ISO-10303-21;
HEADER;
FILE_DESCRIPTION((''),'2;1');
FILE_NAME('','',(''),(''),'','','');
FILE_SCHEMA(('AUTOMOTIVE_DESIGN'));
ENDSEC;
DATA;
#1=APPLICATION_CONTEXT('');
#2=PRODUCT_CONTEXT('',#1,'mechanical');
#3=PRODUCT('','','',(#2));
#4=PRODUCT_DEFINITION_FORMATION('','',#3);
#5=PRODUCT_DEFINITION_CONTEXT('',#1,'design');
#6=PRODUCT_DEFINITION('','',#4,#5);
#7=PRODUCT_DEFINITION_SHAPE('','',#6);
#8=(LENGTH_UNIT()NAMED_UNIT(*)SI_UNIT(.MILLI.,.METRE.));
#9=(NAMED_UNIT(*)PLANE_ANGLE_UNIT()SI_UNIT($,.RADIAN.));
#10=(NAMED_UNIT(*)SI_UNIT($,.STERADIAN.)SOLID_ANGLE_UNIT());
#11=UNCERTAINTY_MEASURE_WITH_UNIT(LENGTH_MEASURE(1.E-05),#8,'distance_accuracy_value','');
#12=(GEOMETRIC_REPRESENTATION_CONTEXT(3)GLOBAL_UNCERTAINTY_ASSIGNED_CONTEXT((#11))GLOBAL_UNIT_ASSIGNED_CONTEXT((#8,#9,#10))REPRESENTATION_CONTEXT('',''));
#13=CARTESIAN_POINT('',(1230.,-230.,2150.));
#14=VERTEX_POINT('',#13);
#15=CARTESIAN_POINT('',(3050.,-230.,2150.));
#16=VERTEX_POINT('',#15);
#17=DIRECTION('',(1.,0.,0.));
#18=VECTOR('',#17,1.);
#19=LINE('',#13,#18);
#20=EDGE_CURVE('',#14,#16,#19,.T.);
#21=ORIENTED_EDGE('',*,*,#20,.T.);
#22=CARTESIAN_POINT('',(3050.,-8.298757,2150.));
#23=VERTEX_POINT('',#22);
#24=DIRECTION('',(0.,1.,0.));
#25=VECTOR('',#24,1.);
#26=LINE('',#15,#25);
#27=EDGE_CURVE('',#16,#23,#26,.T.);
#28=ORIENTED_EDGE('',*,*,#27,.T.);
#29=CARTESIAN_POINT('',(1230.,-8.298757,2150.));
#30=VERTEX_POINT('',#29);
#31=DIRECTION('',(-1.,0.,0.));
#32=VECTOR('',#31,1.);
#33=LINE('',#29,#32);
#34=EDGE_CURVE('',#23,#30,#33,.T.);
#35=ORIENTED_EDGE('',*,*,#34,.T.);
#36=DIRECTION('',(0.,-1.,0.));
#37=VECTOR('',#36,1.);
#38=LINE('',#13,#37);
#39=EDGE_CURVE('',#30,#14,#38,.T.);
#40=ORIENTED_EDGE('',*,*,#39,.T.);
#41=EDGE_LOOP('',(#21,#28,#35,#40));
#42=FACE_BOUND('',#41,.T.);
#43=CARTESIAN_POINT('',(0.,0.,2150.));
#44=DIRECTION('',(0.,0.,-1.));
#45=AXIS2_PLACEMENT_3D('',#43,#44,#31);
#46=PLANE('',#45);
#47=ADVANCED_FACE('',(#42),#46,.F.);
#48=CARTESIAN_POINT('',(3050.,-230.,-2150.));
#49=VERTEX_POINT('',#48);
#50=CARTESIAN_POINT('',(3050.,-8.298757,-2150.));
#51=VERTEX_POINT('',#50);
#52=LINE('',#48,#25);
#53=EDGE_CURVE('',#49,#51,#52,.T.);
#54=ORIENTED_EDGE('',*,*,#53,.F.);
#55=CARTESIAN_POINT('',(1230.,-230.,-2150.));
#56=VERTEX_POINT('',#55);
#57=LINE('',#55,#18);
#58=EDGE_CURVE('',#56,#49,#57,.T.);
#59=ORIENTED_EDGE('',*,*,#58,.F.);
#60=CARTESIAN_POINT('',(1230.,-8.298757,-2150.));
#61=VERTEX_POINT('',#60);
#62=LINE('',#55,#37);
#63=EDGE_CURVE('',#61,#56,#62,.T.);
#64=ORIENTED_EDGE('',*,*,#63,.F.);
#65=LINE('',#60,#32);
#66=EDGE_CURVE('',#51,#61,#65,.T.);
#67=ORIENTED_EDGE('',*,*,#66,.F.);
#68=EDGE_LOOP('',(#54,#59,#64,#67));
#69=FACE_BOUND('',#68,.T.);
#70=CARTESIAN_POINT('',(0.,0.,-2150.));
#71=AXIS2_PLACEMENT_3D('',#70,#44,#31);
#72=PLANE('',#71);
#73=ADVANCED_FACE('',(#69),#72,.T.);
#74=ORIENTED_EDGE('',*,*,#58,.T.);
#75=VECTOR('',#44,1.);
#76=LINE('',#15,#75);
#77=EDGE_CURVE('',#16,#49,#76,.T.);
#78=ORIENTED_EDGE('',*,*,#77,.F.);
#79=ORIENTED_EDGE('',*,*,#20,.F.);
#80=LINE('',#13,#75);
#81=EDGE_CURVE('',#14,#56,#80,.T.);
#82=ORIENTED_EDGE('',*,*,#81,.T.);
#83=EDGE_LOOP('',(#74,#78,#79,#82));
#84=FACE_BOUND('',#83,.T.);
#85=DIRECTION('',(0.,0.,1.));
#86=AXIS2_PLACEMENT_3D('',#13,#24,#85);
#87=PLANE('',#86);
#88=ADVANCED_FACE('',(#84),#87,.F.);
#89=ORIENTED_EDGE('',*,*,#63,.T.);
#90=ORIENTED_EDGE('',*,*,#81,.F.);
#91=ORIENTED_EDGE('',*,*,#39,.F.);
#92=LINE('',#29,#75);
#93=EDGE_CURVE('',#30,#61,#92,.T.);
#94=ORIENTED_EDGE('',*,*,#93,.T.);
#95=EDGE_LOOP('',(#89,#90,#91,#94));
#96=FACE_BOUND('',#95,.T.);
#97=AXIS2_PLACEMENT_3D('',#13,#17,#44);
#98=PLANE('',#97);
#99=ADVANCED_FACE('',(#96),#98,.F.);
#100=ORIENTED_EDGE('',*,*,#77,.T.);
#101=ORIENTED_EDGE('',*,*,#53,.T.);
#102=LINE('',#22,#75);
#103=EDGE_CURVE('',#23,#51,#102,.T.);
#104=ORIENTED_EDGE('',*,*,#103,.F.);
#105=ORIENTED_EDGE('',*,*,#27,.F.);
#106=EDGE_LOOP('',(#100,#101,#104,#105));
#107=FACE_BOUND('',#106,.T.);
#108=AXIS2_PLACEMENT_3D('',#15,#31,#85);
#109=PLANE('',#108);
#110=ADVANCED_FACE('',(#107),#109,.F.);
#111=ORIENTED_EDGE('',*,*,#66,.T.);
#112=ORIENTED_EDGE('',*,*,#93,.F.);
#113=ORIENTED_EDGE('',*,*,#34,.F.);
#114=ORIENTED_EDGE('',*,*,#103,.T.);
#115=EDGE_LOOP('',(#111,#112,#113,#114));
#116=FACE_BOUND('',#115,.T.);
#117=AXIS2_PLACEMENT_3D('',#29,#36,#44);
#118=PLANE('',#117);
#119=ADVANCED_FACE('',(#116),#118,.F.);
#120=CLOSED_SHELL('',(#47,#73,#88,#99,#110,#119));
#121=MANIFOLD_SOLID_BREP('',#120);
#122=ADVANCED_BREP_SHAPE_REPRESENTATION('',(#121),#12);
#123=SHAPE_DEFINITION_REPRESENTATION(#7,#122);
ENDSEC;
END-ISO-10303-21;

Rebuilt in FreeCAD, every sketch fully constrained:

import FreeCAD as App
import Part
import Sketcher


def add_polygon(sketch, points):
    """Adds a closed chain of lines whose ends are joined by coincident constraints."""
    first, n = sketch.GeometryCount, len(points)
    for a, b in zip(points, points[1:] + points[:1]):
        sketch.addGeometry(Part.LineSegment(App.Vector(*a, 0), App.Vector(*b, 0)), False)
    for i in range(n):
        sketch.addConstraint(Sketcher.Constraint("Coincident", first + i, 2, first + (i + 1) % n, 1))

doc = App.newDocument("Part")
body = doc.addObject("PartDesign::Body", "Body")

# Sketch on XY plane
sketch1 = doc.addObject("Sketcher::SketchObject", "Sketch")
body.addObject(sketch1)
sketch1.AttachmentSupport = (doc.XY_Plane, [""])
sketch1.MapMode = "FlatFace"
sketch1.AttachmentOffset = App.Placement(App.Vector(0, 0, -2150), App.Rotation())
add_polygon(sketch1, [(1230, -8.298757), (1230, -230), (3050, -230), (3050, -8.298757)])  # lines 0-3
sketch1.addConstraint([
    Sketcher.Constraint("Vertical", 0),
    Sketcher.Constraint("Horizontal", 1),
    Sketcher.Constraint("Vertical", 2),
    Sketcher.Constraint("Horizontal", 3),
    Sketcher.Constraint("DistanceX", 1, 1, 1, 2, 1820.0),
    Sketcher.Constraint("DistanceX", -1, 1, 0, 2, 1230.0),
    Sketcher.Constraint("DistanceY", 0, 2, -1, 1, 230.0),
    Sketcher.Constraint("DistanceY", 0, 2, 0, 1, 221.701243),
])
pad1 = doc.addObject("PartDesign::Pad", "Pad")
body.addObject(pad1)
pad1.Profile = sketch1
pad1.Length = 4300

doc.recompute()
